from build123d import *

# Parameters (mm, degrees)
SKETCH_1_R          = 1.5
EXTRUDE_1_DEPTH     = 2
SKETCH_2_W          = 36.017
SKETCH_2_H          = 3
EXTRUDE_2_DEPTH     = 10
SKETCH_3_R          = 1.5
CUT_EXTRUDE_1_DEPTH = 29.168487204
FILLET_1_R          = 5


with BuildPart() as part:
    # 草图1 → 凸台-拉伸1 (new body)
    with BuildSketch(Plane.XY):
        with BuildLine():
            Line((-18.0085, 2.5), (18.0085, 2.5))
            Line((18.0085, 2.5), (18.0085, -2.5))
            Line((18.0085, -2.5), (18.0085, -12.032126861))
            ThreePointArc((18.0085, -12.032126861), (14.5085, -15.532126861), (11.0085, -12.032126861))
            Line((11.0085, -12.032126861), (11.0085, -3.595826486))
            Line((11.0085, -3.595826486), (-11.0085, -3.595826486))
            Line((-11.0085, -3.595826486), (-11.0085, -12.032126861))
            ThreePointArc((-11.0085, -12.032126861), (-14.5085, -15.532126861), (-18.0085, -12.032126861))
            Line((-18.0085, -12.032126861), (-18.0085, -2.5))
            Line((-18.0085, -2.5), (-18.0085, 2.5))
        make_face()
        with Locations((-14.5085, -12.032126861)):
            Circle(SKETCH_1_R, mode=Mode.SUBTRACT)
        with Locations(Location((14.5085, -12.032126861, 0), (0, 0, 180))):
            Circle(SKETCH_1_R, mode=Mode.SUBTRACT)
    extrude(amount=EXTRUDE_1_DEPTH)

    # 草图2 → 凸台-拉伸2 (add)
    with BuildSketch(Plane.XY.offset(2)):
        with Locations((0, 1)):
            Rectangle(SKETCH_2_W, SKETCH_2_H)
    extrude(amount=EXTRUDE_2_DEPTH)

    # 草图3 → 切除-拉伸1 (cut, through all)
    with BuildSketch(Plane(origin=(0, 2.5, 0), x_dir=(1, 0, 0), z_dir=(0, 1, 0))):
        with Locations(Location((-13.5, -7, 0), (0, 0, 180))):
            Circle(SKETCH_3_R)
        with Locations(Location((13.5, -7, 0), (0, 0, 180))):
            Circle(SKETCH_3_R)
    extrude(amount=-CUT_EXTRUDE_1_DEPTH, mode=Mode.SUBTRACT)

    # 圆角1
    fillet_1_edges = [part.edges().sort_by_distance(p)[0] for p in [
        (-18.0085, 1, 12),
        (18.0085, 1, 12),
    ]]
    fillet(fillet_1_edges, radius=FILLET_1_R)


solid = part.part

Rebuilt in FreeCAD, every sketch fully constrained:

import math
import FreeCAD as App
import Part
import Sketcher
from FreeCAD import Vector


def edges_at(feature, points):
    """Names of the edges that pass closest to the given points."""
    edges = feature.Shape.Edges
    near = lambda p: min(range(len(edges)), key=lambda i: edges[i].distToShape(Part.Vertex(*p))[0])
    return sorted({f"Edge{near(p) + 1}" for p in points})

doc = App.newDocument("Part")
body = doc.addObject("PartDesign::Body", "Body")

# Sketch on XY plane
sketch1 = body.newObject("Sketcher::SketchObject", "Sketch")
sketch1.AttachmentSupport = (doc.getObject("XY_Plane"), [""])
sketch1.MapMode = "FlatFace"
sketch1.addGeometry(Part.LineSegment(Vector(18.0085, 2.5, 0), Vector(-18.0085, 2.5, 0)), False)
sketch1.addGeometry(Part.LineSegment(Vector(-18.0085, 2.5, 0), Vector(-18.0085, -12.032127, 0)), False)
sketch1.addGeometry(Part.ArcOfCircle(Part.Circle(Vector(-14.5085, -12.032127, 0), Vector(0, 0, 1), 3.5), math.radians(180), math.radians(360)), False)
sketch1.addGeometry(Part.LineSegment(Vector(-11.0085, -12.032127, 0), Vector(-11.0085, -3.595826, 0)), False)
sketch1.addGeometry(Part.LineSegment(Vector(-11.0085, -3.595826, 0), Vector(11.0085, -3.595826, 0)), False)
sketch1.addGeometry(Part.LineSegment(Vector(11.0085, -3.595826, 0), Vector(11.0085, -12.032127, 0)), False)
sketch1.addGeometry(Part.ArcOfCircle(Part.Circle(Vector(14.5085, -12.032127, 0), Vector(0, 0, 1), 3.5), math.radians(180), math.radians(360)), False)
sketch1.addGeometry(Part.LineSegment(Vector(18.0085, -12.032127, 0), Vector(18.0085, 2.5, 0)), False)
sketch1.addGeometry(Part.Circle(Vector(14.5085, -12.032127, 0), Vector(0, 0, 1), 1.5), False)
sketch1.addGeometry(Part.Circle(Vector(-14.5085, -12.032127, 0), Vector(0, 0, 1), 1.5), False)
sketch1.addConstraint(Sketcher.Constraint("Coincident", 0, 2, 1, 1))
sketch1.addConstraint(Sketcher.Constraint("Tangent", 1, 2, 2, 1))
sketch1.addConstraint(Sketcher.Constraint("Tangent", 2, 2, 3, 1))
sketch1.addConstraint(Sketcher.Constraint("Coincident", 3, 2, 4, 1))
sketch1.addConstraint(Sketcher.Constraint("Coincident", 4, 2, 5, 1))
sketch1.addConstraint(Sketcher.Constraint("Tangent", 5, 2, 6, 1))
sketch1.addConstraint(Sketcher.Constraint("Tangent", 6, 2, 7, 1))
sketch1.addConstraint(Sketcher.Constraint("Coincident", 7, 2, 0, 1))
sketch1.addConstraint(Sketcher.Constraint("Horizontal", 0))
sketch1.addConstraint(Sketcher.Constraint("Vertical", 1))
sketch1.addConstraint(Sketcher.Constraint("Vertical", 3))
sketch1.addConstraint(Sketcher.Constraint("Horizontal", 4))
sketch1.addConstraint(Sketcher.Constraint("Vertical", 5))
sketch1.addConstraint(Sketcher.Constraint("Vertical", 7))
sketch1.addConstraint(Sketcher.Constraint("Coincident", 8, 3, 6, 3))
sketch1.addConstraint(Sketcher.Constraint("Coincident", 9, 3, 2, 3))
sketch1.addConstraint(Sketcher.Constraint("Equal", 2, 6))
sketch1.addConstraint(Sketcher.Constraint("Equal", 8, 9))
sketch1.addConstraint(Sketcher.Constraint("Symmetric", 2, 3, 6, 3, -2))
sketch1.addConstraint(Sketcher.Constraint("Diameter", 8, 3.0))
sketch1.addConstraint(Sketcher.Constraint("Radius", 2, 3.5))
sketch1.addConstraint(Sketcher.Constraint("DistanceY", -1, 1, 0, 2, 2.5))
sketch1.addConstraint(Sketcher.Constraint("DistanceX", 0, 2, 0, 1, 36.017))
sketch1.addConstraint(Sketcher.Constraint("DistanceY", 3, 1, 3, 2, 8.4363))
sketch1.addConstraint(Sketcher.Constraint("DistanceY", 1, 2, 1, 1, 14.532127))
pad1 = body.newObject("PartDesign::Pad", "Pad")
pad1.Profile = sketch1
pad1.Length = 2

# Sketch on XY plane
sketch2 = body.newObject("Sketcher::SketchObject", "Sketch001")
sketch2.AttachmentSupport = (doc.getObject("XY_Plane"), [""])
sketch2.MapMode = "FlatFace"
sketch2.AttachmentOffset = App.Placement(Vector(0, 0, 2), App.Rotation())
sketch2.addGeometry(Part.LineSegment(Vector(-18.0085, 2.5, 0), Vector(-18.0085, -0.5, 0)), False)
sketch2.addGeometry(Part.LineSegment(Vector(-18.0085, -0.5, 0), Vector(18.0085, -0.5, 0)), False)
sketch2.addGeometry(Part.LineSegment(Vector(18.0085, -0.5, 0), Vector(18.0085, 2.5, 0)), False)
sketch2.addGeometry(Part.LineSegment(Vector(18.0085, 2.5, 0), Vector(-18.0085, 2.5, 0)), False)
sketch2.addConstraint(Sketcher.Constraint("Coincident", 0, 2, 1, 1))
sketch2.addConstraint(Sketcher.Constraint("Coincident", 1, 2, 2, 1))
sketch2.addConstraint(Sketcher.Constraint("Coincident", 2, 2, 3, 1))
sketch2.addConstraint(Sketcher.Constraint("Coincident", 3, 2, 0, 1))
sketch2.addConstraint(Sketcher.Constraint("Vertical", 0))
sketch2.addConstraint(Sketcher.Constraint("Horizontal", 1))
sketch2.addConstraint(Sketcher.Constraint("Vertical", 2))
sketch2.addConstraint(Sketcher.Constraint("Horizontal", 3))
sketch2.addConstraint(Sketcher.Constraint("DistanceY", 0, 2, 0, 1, 3.0))
sketch2.addConstraint(Sketcher.Constraint("DistanceY", 0, 2, -1, 1, 0.5))
sketch2.addConstraint(Sketcher.Constraint("DistanceX", 1, 1, 1, 2, 36.017))
sketch2.addConstraint(Sketcher.Constraint("DistanceX", 0, 2, -1, 1, 18.0085))
pad2 = body.newObject("PartDesign::Pad", "Pad001")
pad2.Profile = sketch2
pad2.Length = 10

# Sketch on XZ plane
sketch3 = body.newObject("Sketcher::SketchObject", "Sketch002")
sketch3.AttachmentSupport = (doc.getObject("XZ_Plane"), [""])
sketch3.MapMode = "FlatFace"
sketch3.AttachmentOffset = App.Placement(Vector(0, 0, -2.5), App.Rotation())
sketch3.addGeometry(Part.Circle(Vector(-13.5, 7, 0), Vector(0, 0, 1), 1.5), False)
sketch3.addGeometry(Part.Circle(Vector(13.5, 7, 0), Vector(0, 0, 1), 1.5), False)
sketch3.addConstraint(Sketcher.Constraint("Equal", 0, 1))
sketch3.addConstraint(Sketcher.Constraint("Symmetric", 0, 3, 1, 3, -2))
sketch3.addConstraint(Sketcher.Constraint("Diameter", 0, 3.0))
sketch3.addConstraint(Sketcher.Constraint("DistanceY", -1, 1, 0, 3, 7.0))
sketch3.addConstraint(Sketcher.Constraint("DistanceX", 0, 3, 1, 3, 27.0))
pocket1 = body.newObject("PartDesign::Pocket", "Pocket")
pocket1.Profile = sketch3
pocket1.Type = "ThroughAll"
pocket1.Reversed = True
doc.recompute()

fillet = body.newObject("PartDesign::Fillet", "Fillet")
fillet.Base = (pocket1, edges_at(pocket1, [(-18.009, 1, 12), (18.009, 1, 12)]))
fillet.Radius = 5

doc.recompute()
